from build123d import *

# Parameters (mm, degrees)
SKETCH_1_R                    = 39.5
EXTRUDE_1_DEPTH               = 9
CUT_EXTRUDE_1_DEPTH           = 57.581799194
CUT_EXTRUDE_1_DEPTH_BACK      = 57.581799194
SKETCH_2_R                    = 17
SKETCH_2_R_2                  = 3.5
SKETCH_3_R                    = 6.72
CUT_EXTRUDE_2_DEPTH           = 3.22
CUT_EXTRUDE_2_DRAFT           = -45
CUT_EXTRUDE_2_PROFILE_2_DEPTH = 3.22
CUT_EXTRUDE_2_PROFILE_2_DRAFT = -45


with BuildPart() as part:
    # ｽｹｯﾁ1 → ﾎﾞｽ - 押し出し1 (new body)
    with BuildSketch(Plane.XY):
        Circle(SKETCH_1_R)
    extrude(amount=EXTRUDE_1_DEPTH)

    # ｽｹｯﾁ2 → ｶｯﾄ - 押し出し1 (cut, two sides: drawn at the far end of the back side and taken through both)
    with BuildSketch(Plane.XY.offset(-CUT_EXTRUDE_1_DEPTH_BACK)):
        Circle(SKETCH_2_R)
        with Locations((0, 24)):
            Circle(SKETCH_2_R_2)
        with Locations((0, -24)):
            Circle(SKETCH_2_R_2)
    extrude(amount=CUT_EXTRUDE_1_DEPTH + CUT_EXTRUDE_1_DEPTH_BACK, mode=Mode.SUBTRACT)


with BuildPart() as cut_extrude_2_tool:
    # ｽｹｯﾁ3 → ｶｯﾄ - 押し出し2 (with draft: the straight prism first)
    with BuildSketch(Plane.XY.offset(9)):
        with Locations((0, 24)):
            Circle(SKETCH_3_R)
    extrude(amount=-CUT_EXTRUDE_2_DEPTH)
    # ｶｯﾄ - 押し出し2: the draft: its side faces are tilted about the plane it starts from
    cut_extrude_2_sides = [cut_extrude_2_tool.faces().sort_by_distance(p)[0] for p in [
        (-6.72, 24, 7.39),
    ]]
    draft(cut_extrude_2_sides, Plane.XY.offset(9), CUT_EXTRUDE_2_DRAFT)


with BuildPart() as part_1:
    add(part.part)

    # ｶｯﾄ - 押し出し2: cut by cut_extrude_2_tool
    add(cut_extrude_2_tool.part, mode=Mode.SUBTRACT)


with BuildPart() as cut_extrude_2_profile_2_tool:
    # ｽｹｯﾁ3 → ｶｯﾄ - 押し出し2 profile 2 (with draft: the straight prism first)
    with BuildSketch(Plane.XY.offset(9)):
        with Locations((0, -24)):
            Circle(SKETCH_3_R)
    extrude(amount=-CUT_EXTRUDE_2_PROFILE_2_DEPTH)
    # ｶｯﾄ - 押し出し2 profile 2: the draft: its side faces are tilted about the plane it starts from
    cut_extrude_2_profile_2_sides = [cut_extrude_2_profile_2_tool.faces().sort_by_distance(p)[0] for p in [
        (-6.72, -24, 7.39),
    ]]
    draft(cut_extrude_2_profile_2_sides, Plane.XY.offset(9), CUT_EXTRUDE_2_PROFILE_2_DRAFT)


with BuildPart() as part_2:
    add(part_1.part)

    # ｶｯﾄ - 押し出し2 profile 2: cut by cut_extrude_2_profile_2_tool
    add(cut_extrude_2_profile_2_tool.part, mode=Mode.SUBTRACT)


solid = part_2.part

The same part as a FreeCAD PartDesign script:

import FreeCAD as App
import Part
import Sketcher

V = App.Vector
Q = App.Units.Quantity


def faces_at(feature, points):
    """Names of the faces that lie closest to the given points."""
    faces = feature.Shape.Faces
    near = lambda p: min(range(len(faces)), key=lambda i: faces[i].distToShape(Part.Vertex(*p))[0])
    return sorted({f"Face{near(p) + 1}" for p in points})

doc = App.newDocument("Part")
body = doc.addObject("PartDesign::Body", "Body")

sketch1 = body.newObject("Sketcher::SketchObject", "Sketch")
sketch1.AttachmentSupport = (doc.getObject("XY_Plane"), [""])
sketch1.MapMode = "FlatFace"
sketch1.addGeometry(Part.Circle(V(0, 0, 0), V(0, 0, 1), 40), False)
sketch1.addConstraint([
    Sketcher.Constraint("Coincident", 0, 3, -1, 1),
    Sketcher.Constraint("Diameter", 0, Q("79 mm")),
])
pad1 = body.newObject("PartDesign::Pad", "Pad")
pad1.Profile = sketch1
pad1.Length = 9

sketch2 = body.newObject("Sketcher::SketchObject", "Sketch001")
sketch2.AttachmentSupport = (doc.getObject("XY_Plane"), [""])
sketch2.MapMode = "FlatFace"
sketch2.addGeometry([
    Part.Circle(V(0, 0, 0), V(0, 0, 1), 17),
    Part.Circle(V(0, 24, 0), V(0, 0, 1), 3.5),
    Part.Circle(V(0, -24, 0), V(0, 0, 1), 3.5),
], False)
sketch2.addConstraint([
    Sketcher.Constraint("Coincident", 0, 3, -1, 1),
    Sketcher.Constraint("Equal", 1, 2),
    Sketcher.Constraint("Symmetric", 1, 3, 2, 3, -1, 1),
    Sketcher.Constraint("PointOnObject", 1, 3, -2),
    Sketcher.Constraint("Diameter", 0, Q("34 mm")),
    Sketcher.Constraint("Diameter", 1, Q("7 mm")),
    Sketcher.Constraint("DistanceY", -1, 1, 1, 3, Q("24 mm")),
])
pocket1 = body.newObject("PartDesign::Pocket", "Pocket")
pocket1.Profile = sketch2
pocket1.Type = "ThroughAll"
pocket1.Midplane = True
body2 = doc.addObject("PartDesign::Body", "Body001")

sketch3 = body2.newObject("Sketcher::SketchObject", "Sketch002")
sketch3.AttachmentSupport = (doc.getObject("XY_Plane001"), [""])
sketch3.MapMode = "FlatFace"
sketch3.AttachmentOffset = App.Placement(V(0, 0, 9), App.Rotation())
sketch3.addGeometry(Part.Circle(V(0, 24, 0), V(0, 0, 1), 7), False)
sketch3.addConstraint([
    Sketcher.Constraint("PointOnObject", 0, 3, -2),
    Sketcher.Constraint("Diameter", 0, Q("13.44 mm")),
    Sketcher.Constraint("DistanceY", -1, 1, 0, 3, Q("24 mm")),
])
pad2 = body2.newObject("PartDesign::Pad", "Pad001")
pad2.Profile = sketch3
pad2.Length = 3.22
pad2.Reversed = True
doc.recompute()

datumplane = body2.newObject("PartDesign::Plane", "DatumPlane")
datumplane.AttachmentSupport = (doc.getObject("XY_Plane001"), [""])
datumplane.MapMode = "FlatFace"
datumplane.AttachmentOffset = App.Placement(V(0, 0, 9), App.Rotation())
draft = body2.newObject("PartDesign::Draft", "Draft")
draft.Base = (pad2, faces_at(pad2, [(-6.72, 24, 7.39)]))
draft.NeutralPlane = (datumplane, [""])
draft.Angle = 45
draft.Reversed = True
doc.recompute()

boolean = body.newObject("PartDesign::Boolean", "Boolean")
boolean.Type = "Cut"
boolean.addObjects([body2])
body3 = doc.addObject("PartDesign::Body", "Body002")

sketch4 = body3.newObject("Sketcher::SketchObject", "Sketch003")
sketch4.AttachmentSupport = (doc.getObject("XY_Plane002"), [""])
sketch4.MapMode = "FlatFace"
sketch4.AttachmentOffset = App.Placement(V(0, 0, 9), App.Rotation())
sketch4.addGeometry(Part.Circle(V(0, -24, 0), V(0, 0, 1), 7), False)
sketch4.addConstraint([
    Sketcher.Constraint("PointOnObject", 0, 3, -2),
    Sketcher.Constraint("Diameter", 0, Q("13.44 mm")),
    Sketcher.Constraint("DistanceY", 0, 3, -1, 1, Q("24 mm")),
])
pad3 = body3.newObject("PartDesign::Pad", "Pad002")
pad3.Profile = sketch4
pad3.Length = 3.22
pad3.Reversed = True
doc.recompute()

datumplane2 = body3.newObject("PartDesign::Plane", "DatumPlane001")
datumplane2.AttachmentSupport = (doc.getObject("XY_Plane002"), [""])
datumplane2.MapMode = "FlatFace"
datumplane2.AttachmentOffset = App.Placement(V(0, 0, 9), App.Rotation())
draft2 = body3.newObject("PartDesign::Draft", "Draft001")
draft2.Base = (pad3, faces_at(pad3, [(-6.72, -24, 7.39)]))
draft2.NeutralPlane = (datumplane2, [""])
draft2.Angle = 45
draft2.Reversed = True
doc.recompute()

boolean2 = body.newObject("PartDesign::Boolean", "Boolean001")
boolean2.Type = "Cut"
boolean2.addObjects([body3])

doc.recompute()
